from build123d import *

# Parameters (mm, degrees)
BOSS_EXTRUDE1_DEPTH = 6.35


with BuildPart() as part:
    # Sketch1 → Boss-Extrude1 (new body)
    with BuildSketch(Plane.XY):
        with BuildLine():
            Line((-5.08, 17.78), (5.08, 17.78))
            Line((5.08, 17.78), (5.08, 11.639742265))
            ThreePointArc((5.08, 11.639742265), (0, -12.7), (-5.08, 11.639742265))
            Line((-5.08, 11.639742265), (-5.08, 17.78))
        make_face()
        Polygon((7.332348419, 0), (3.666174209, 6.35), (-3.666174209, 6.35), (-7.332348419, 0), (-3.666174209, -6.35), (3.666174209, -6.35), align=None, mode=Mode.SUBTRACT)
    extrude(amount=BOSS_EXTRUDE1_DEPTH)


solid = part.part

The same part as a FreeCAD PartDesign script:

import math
import FreeCAD as App
import Part
import Sketcher
Q = App.Units.Quantity

doc = App.newDocument("Part")
body = doc.addObject("PartDesign::Body", "Body")

sketch1 = body.newObject("Sketcher::SketchObject", "Sketch")
sketch1.AttachmentSupport = (doc.getObject("XY_Plane"), [""])
sketch1.MapMode = "FlatFace"
sketch1.addGeometry([
    Part.LineSegment(App.Vector(5, 18, 0), App.Vector(-5, 18, 0)),
    Part.LineSegment(App.Vector(-5, 18, 0), App.Vector(-5, 12, 0)),
    Part.ArcOfCircle(Part.Circle(App.Vector(0, 0, 0), App.Vector(0, 0, 1), 13), math.radians(114), math.radians(426)),
    Part.LineSegment(App.Vector(5, 12, 0), App.Vector(5, 18, 0)),
    Part.LineSegment(App.Vector(7, 0, 0), App.Vector(4, -6, 0)),
    Part.LineSegment(App.Vector(4, -6, 0), App.Vector(-4, -6, 0)),
    Part.LineSegment(App.Vector(-4, -6, 0), App.Vector(-7, 0, 0)),
    Part.LineSegment(App.Vector(-7, 0, 0), App.Vector(-4, 6, 0)),
    Part.LineSegment(App.Vector(-4, 6, 0), App.Vector(4, 6, 0)),
    Part.LineSegment(App.Vector(4, 6, 0), App.Vector(7, 0, 0)),
], False)
sketch1.addConstraint([
    Sketcher.Constraint("Coincident", 0, 2, 1, 1),
    Sketcher.Constraint("Coincident", 1, 2, 2, 1),
    Sketcher.Constraint("Coincident", 2, 2, 3, 1),
    Sketcher.Constraint("Coincident", 3, 2, 0, 1),
    Sketcher.Constraint("Coincident", 4, 2, 5, 1),
    Sketcher.Constraint("Coincident", 5, 2, 6, 1),
    Sketcher.Constraint("Coincident", 6, 2, 7, 1),
    Sketcher.Constraint("Coincident", 7, 2, 8, 1),
    Sketcher.Constraint("Coincident", 8, 2, 9, 1),
    Sketcher.Constraint("Coincident", 9, 2, 4, 1),
    Sketcher.Constraint("Horizontal", 0),
    Sketcher.Constraint("Vertical", 1),
    Sketcher.Constraint("Vertical", 3),
    Sketcher.Constraint("Horizontal", 5),
    Sketcher.Constraint("Horizontal", 8),
    Sketcher.Constraint("Coincident", 2, 3, -1, 1),
    Sketcher.Constraint("Symmetric", 4, 2, 7, 2, -1, 1),
    Sketcher.Constraint("Symmetric", 6, 2, 9, 2, -1, 1),
    Sketcher.Constraint("PointOnObject", 6, 2, -1),
    Sketcher.Constraint("Parallel", 6, 9),
    Sketcher.Constraint("Horizontal", 1, 2, 2, 2),
    Sketcher.Constraint("Vertical", 5, 2, 7, 2),
    Sketcher.Constraint("Radius", 2, Q("0.5 in")),
    Sketcher.Constraint("DistanceX", 0, 2, 0, 1, Q("0.4 in")),
    Sketcher.Constraint("Angle", 4, Q("-120 deg")),
    Sketcher.Constraint("DistanceY", -1, 1, 0, 2, Q("0.7 in")),
    Sketcher.Constraint("DistanceY", 4, 2, -1, 1, Q("0.25 in")),
    Sketcher.Constraint("DistanceX", 5, 2, 5, 1, Q("7.332348 mm")),
])
pad1 = body.newObject("PartDesign::Pad", "Pad")
pad1.Profile = sketch1
pad1.Length = Q("0.25 in")

doc.recompute()
